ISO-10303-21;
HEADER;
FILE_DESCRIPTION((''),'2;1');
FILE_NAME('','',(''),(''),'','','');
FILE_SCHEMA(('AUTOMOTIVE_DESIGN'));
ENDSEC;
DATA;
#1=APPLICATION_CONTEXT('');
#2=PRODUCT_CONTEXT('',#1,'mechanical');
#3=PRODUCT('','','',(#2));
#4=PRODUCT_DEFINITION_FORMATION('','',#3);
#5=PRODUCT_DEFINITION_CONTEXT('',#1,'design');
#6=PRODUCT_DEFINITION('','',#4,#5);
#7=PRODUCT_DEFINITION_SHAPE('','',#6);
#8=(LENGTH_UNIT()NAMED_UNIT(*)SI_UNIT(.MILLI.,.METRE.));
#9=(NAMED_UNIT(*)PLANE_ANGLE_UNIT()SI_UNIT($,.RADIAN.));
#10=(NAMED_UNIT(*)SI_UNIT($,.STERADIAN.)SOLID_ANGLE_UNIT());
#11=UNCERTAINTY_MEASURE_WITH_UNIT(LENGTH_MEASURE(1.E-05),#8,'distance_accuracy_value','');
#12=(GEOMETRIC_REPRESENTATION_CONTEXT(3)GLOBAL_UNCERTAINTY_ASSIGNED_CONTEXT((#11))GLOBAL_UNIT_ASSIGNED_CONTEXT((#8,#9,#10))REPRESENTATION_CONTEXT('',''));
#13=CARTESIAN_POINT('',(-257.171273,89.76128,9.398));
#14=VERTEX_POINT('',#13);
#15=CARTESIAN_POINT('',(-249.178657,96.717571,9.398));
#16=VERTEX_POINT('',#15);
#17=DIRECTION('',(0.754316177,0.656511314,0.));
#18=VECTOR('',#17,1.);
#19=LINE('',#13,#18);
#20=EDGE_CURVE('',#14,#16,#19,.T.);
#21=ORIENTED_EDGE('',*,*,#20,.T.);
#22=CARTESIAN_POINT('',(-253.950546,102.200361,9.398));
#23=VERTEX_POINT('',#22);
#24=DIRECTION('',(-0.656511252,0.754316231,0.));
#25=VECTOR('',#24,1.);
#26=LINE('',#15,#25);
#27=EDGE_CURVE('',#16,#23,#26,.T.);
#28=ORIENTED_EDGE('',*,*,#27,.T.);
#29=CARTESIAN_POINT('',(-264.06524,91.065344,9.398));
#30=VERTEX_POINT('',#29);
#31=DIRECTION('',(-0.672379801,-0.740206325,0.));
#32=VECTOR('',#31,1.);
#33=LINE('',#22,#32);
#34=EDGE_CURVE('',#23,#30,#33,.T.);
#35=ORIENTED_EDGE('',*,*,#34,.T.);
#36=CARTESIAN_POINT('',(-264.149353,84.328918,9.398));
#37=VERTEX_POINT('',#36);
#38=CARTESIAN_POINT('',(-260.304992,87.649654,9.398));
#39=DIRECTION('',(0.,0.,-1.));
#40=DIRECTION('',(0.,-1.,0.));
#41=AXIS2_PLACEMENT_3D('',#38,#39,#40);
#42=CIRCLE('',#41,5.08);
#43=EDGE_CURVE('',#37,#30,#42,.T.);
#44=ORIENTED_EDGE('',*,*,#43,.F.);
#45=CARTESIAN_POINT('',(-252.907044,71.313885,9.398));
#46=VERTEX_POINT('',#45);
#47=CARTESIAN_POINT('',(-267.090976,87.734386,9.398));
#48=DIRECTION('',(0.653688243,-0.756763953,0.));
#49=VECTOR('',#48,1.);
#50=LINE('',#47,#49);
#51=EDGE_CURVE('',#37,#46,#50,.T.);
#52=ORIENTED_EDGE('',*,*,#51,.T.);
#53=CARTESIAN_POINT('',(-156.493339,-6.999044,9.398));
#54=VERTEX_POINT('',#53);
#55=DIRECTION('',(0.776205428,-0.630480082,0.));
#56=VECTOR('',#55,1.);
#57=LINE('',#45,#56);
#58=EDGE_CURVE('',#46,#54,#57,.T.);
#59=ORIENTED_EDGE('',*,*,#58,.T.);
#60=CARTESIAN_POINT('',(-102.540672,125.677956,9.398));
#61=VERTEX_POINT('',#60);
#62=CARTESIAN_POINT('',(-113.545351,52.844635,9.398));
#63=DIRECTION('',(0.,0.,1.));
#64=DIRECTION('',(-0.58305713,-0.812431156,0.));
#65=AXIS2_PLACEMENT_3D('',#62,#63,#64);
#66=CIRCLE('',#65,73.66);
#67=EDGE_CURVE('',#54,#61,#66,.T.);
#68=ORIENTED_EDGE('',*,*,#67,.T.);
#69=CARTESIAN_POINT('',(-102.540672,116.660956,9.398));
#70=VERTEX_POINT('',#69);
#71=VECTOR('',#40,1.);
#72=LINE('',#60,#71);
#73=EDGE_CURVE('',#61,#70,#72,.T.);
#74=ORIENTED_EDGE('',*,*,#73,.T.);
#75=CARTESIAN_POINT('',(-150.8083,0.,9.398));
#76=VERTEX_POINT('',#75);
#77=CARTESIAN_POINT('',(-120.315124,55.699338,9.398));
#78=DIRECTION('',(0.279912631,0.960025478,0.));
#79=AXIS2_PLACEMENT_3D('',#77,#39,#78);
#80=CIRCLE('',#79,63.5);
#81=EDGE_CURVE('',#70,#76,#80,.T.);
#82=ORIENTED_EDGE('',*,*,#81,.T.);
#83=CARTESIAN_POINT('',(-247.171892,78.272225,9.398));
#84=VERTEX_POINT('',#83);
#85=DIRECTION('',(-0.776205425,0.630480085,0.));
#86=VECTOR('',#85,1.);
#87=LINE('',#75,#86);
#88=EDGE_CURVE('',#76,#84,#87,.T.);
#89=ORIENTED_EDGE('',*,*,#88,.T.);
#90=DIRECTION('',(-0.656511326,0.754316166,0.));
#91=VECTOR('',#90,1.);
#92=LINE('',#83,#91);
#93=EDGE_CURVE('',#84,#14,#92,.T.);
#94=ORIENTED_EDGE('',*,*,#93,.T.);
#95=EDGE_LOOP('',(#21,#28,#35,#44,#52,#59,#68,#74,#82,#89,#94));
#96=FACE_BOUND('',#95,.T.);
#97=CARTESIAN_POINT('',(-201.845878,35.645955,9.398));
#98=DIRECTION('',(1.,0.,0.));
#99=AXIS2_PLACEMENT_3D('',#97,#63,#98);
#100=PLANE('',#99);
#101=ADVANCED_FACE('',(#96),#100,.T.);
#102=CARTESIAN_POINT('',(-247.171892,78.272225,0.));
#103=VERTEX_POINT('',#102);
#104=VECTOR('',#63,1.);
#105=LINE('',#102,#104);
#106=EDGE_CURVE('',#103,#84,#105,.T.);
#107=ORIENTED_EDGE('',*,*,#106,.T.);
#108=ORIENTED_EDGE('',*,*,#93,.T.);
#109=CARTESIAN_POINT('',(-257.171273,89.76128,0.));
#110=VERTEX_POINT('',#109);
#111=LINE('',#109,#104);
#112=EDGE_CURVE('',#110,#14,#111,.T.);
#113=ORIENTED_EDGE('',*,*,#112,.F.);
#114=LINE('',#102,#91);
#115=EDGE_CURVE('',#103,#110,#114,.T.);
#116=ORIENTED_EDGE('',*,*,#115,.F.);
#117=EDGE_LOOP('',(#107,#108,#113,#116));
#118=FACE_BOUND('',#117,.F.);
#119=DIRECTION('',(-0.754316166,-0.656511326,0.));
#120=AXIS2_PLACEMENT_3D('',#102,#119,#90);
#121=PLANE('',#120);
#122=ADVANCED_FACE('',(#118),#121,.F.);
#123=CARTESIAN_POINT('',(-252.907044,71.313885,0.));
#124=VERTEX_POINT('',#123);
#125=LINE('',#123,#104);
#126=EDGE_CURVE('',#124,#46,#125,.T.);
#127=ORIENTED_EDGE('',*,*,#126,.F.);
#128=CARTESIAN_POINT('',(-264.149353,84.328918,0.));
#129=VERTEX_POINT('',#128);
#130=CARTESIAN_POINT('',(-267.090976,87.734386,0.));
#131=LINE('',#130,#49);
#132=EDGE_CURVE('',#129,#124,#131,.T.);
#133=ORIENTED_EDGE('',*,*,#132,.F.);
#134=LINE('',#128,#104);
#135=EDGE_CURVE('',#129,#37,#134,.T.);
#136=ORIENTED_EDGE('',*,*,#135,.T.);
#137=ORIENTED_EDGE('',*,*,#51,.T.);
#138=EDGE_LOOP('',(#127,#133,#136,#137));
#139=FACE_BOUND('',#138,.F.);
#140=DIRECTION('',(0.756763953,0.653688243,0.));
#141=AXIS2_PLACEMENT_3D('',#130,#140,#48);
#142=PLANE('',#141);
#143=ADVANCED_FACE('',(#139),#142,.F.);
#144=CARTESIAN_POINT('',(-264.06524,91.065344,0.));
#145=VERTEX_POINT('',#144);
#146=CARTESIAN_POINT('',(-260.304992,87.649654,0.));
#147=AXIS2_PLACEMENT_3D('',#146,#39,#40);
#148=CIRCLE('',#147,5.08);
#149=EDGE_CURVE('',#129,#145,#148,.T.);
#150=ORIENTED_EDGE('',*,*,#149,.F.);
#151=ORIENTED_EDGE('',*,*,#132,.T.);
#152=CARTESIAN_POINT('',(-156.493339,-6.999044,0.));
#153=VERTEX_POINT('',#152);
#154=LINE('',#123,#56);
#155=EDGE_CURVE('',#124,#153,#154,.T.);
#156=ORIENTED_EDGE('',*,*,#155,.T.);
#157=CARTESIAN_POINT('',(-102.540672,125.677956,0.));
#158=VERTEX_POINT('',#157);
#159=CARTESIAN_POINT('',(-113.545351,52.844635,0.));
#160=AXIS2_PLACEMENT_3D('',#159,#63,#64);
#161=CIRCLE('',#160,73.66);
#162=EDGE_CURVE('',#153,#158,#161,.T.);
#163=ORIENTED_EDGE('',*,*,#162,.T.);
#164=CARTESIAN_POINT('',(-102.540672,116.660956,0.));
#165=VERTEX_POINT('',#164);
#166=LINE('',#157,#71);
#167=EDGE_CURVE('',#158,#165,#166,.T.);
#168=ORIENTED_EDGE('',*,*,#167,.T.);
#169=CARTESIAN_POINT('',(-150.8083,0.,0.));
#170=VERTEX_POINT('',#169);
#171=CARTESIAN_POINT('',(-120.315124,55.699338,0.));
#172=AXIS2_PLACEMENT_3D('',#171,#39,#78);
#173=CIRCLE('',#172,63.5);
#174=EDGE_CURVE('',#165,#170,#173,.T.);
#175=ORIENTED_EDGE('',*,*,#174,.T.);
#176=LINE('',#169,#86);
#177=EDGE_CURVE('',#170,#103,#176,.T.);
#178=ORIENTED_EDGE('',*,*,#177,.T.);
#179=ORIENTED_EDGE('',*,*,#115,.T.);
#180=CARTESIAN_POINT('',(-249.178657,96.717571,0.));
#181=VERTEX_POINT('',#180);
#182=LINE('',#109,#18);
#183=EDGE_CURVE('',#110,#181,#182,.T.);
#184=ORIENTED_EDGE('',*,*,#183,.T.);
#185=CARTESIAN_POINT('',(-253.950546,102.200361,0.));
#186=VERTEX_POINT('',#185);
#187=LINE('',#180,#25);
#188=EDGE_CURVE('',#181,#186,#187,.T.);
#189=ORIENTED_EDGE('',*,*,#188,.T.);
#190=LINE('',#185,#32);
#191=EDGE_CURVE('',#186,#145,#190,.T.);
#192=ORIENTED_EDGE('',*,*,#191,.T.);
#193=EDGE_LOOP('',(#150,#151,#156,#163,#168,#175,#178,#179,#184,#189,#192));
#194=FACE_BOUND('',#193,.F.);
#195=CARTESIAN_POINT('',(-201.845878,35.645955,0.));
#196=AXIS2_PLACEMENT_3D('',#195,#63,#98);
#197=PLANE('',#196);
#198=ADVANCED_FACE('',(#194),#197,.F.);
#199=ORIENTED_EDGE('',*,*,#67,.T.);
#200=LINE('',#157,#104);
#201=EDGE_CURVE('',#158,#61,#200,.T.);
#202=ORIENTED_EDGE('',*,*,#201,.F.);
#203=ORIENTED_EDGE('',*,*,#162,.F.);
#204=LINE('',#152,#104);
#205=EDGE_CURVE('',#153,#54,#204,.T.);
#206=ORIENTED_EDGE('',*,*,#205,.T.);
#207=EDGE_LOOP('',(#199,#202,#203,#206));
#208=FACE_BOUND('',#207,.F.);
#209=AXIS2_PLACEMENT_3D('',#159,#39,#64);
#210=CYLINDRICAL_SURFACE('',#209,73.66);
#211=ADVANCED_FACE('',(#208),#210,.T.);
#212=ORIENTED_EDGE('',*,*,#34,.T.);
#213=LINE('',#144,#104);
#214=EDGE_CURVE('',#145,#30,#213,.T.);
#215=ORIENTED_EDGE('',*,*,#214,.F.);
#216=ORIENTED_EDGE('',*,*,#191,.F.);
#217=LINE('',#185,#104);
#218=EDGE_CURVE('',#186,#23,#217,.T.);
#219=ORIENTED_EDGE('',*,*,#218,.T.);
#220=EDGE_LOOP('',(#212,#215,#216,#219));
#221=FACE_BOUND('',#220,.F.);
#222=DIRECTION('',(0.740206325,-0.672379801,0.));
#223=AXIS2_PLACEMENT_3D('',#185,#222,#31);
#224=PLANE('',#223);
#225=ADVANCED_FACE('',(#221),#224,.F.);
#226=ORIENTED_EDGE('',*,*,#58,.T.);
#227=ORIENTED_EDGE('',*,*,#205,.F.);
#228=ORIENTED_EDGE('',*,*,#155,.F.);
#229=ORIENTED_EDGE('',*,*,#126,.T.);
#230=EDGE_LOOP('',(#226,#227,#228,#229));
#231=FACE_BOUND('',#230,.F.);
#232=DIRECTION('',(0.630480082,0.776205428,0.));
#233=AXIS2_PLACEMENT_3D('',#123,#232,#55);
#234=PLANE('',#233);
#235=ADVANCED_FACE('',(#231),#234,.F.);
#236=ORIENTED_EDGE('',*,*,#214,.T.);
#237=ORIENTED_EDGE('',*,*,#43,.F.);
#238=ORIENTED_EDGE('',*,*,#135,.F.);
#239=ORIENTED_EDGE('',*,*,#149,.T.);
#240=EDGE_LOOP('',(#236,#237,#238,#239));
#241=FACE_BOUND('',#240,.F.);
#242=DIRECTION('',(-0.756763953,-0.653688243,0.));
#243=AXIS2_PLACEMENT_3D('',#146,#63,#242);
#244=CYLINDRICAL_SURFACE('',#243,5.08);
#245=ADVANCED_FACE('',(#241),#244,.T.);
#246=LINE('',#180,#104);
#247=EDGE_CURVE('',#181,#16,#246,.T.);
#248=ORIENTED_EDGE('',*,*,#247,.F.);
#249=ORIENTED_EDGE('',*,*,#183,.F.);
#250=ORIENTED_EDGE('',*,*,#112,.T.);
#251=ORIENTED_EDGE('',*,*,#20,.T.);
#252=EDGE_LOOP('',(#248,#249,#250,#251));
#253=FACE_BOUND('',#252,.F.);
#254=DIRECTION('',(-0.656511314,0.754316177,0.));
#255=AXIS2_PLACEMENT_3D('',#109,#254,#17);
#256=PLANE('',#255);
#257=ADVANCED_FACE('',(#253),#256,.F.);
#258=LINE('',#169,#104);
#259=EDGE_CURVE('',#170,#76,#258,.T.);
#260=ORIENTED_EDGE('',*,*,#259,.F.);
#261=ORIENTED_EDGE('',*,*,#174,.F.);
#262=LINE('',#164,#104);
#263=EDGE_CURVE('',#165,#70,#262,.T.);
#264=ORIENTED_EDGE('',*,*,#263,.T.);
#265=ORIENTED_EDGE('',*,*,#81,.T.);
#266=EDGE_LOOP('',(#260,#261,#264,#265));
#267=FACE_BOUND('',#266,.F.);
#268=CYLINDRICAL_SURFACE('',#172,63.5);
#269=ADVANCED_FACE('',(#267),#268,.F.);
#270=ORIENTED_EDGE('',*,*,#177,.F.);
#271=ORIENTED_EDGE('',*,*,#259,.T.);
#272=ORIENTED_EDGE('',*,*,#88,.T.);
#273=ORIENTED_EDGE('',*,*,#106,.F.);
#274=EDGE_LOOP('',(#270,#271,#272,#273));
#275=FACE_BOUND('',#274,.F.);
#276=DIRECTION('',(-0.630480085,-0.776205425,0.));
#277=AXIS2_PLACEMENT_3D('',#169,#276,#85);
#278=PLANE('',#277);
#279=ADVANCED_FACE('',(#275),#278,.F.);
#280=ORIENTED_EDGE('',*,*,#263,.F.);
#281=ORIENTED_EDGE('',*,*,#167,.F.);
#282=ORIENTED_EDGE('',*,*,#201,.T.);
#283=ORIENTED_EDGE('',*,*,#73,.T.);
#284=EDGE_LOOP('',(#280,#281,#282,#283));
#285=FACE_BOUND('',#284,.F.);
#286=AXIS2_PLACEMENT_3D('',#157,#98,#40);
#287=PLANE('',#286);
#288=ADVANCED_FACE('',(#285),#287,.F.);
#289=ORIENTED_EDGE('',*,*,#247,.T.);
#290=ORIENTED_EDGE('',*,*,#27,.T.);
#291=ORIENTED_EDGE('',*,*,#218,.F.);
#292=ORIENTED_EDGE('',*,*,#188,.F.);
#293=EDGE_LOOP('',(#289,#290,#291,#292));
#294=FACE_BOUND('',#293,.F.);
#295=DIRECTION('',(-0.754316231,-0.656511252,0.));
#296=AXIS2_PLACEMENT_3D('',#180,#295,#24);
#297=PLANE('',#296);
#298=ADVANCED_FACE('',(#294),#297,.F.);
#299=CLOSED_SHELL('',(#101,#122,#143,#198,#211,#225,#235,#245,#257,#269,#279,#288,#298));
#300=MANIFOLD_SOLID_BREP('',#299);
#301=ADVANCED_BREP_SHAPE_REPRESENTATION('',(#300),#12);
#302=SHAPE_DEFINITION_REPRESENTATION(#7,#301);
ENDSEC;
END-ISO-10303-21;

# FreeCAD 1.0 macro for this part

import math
import FreeCAD as App
import Part
import Sketcher
Q = App.Units.Quantity


def edges_at(feature, points):
    """Names of the edges that pass closest to the given points."""
    edges = feature.Shape.Edges
    near = lambda p: min(range(len(edges)), key=lambda i: edges[i].distToShape(Part.Vertex(*p))[0])
    return sorted({f"Edge{near(p) + 1}" for p in points})

doc = App.newDocument("Part")
params = doc.addObject("Spreadsheet::Sheet", "Params")
for row, (alias, value) in enumerate([
    ("sketch1_radius", "2.9 in"),
    ("sketch1_radius2", "2.5 in"),
    ("sketch1_height", "0.355 in"),
    ("pad1_length", "0.37 in"),
    ("sketch2_radius", "2.9 in"),
    ("sketch2_radius2", "2.5 in"),
    ("sketch2_height", "0.355 in"),
    ("pad2_length", "0.37 in"),
    ("fillet_radius", "0.2 in"),
], start=1):
    params.set(f"A{row}", alias)
    params.set(f"B{row}", "=" + value)
    params.setAlias(f"B{row}", alias)

body = doc.addObject("PartDesign::Body", "Body")

sketch1 = doc.addObject("Sketcher::SketchObject", "Sketch")
body.addObject(sketch1)
sketch1.AttachmentSupport = (doc.XY_Plane, [""])
sketch1.MapMode = "FlatFace"
sketch1.addGeometry([
    Part.LineSegment(App.Vector(-252.907044, 71.313885, 0), App.Vector(-156.493339, -6.999044, 0)),
    Part.ArcOfCircle(Part.Circle(App.Vector(-113.545351, 52.844635, 0), App.Vector(0, 0, 1), 73.66), math.radians(-125.665853), math.radians(81.407941)),
    Part.LineSegment(App.Vector(-102.540672, 125.677956, 0), App.Vector(-102.540672, 116.660956, 0)),
    Part.ArcOfCircle(Part.Circle(App.Vector(-120.315124, 55.699338, 0), App.Vector(0, 0, 1), 63.5), math.radians(-118.698955), math.radians(73.74501)),
    Part.LineSegment(App.Vector(-150.8083, 0, 0), App.Vector(-247.171892, 78.272225, 0)),
    Part.LineSegment(App.Vector(-247.171892, 78.272225, 0), App.Vector(-252.907044, 71.313885, 0)),
], False)
sketch1.addConstraint([
    Sketcher.Constraint("Coincident", 0, 2, 1, 1),
    Sketcher.Constraint("Coincident", 1, 2, 2, 1),
    Sketcher.Constraint("Coincident", 2, 2, 3, 2),
    Sketcher.Constraint("Coincident", 3, 1, 4, 1),
    Sketcher.Constraint("Coincident", 4, 2, 5, 1),
    Sketcher.Constraint("Coincident", 5, 2, 0, 1),
    Sketcher.Constraint("Vertical", 2),
    Sketcher.Constraint("PointOnObject", 3, 1, -1),
    Sketcher.Constraint("Parallel", 0, 4),
    Sketcher.Constraint("Radius", 1, Q("2.9 in")),
    Sketcher.Constraint("Radius", 3, Q("2.5 in")),
    Sketcher.Constraint("DistanceY", 2, 2, 2, 1, Q("0.355 in")),
    Sketcher.Constraint("DistanceX", 3, 1, -1, 1, 150.8083),
    Sketcher.Constraint("DistanceY", 0, 2, 1, 2, 132.677),
    Sketcher.Constraint("Distance", 4, 124.147022),
    Sketcher.Constraint("Distance", 5, 9.017232),
    Sketcher.Constraint("DistanceX", 1, 3, -1, 1, 113.545351),
    Sketcher.Constraint("DistanceX", 0, 2, -1, 1, 156.493339),
    Sketcher.Constraint("DistanceY", 0, 2, 3, 3, 62.698382),
    Sketcher.Constraint("DistanceY", 0, 2, 4, 2, 85.271269),
])
sketch1.setExpression("Constraints[9]", "Params.sketch1_radius")
sketch1.setExpression("Constraints[10]", "Params.sketch1_radius2")
sketch1.setExpression("Constraints[11]", "Params.sketch1_height")
pad1 = doc.addObject("PartDesign::Pad", "Pad")
body.addObject(pad1)
pad1.Profile = sketch1
pad1.setExpression("Length", "Params.pad1_length")

sketch2 = doc.addObject("Sketcher::SketchObject", "Sketch001")
body.addObject(sketch2)
sketch2.AttachmentSupport = (doc.XY_Plane, [""])
sketch2.MapMode = "FlatFace"
sketch2.addGeometry([
    Part.ArcOfCircle(Part.Circle(App.Vector(-114, 53, 0), App.Vector(0, 0, 1), 74), math.radians(-126), math.radians(81)),
    Part.LineSegment(App.Vector(-103, 126, 0), App.Vector(-103, 117, 0)),
    Part.ArcOfCircle(Part.Circle(App.Vector(-120, 56, 0), App.Vector(0, 0, 1), 64), math.radians(-119), math.radians(74)),
    Part.LineSegment(App.Vector(-151, 0, 0), App.Vector(-247, 78, 0)),
    Part.LineSegment(App.Vector(-247, 78, 0), App.Vector(-257, 90, 0)),
    Part.LineSegment(App.Vector(-257, 90, 0), App.Vector(-249, 97, 0)),
    Part.LineSegment(App.Vector(-249, 97, 0), App.Vector(-254, 102, 0)),
    Part.LineSegment(App.Vector(-254, 102, 0), App.Vector(-267, 88, 0)),
    Part.LineSegment(App.Vector(-267, 88, 0), App.Vector(-253, 71, 0)),
    Part.LineSegment(App.Vector(-253, 71, 0), App.Vector(-156, -7, 0)),
], False)
sketch2.addConstraint([
    Sketcher.Constraint("Coincident", 0, 2, 1, 1),
    Sketcher.Constraint("Coincident", 1, 2, 2, 2),
    Sketcher.Constraint("Coincident", 2, 1, 3, 1),
    Sketcher.Constraint("Coincident", 3, 2, 4, 1),
    Sketcher.Constraint("Coincident", 4, 2, 5, 1),
    Sketcher.Constraint("Coincident", 5, 2, 6, 1),
    Sketcher.Constraint("Coincident", 6, 2, 7, 1),
    Sketcher.Constraint("Coincident", 7, 2, 8, 1),
    Sketcher.Constraint("Coincident", 8, 2, 9, 1),
    Sketcher.Constraint("Coincident", 9, 2, 0, 1),
    Sketcher.Constraint("Vertical", 1),
    Sketcher.Constraint("PointOnObject", 2, 1, -1),
    Sketcher.Constraint("Perpendicular", 4, 5),
    Sketcher.Constraint("Perpendicular", 5, 6),
    Sketcher.Constraint("Parallel", 3, 9),
    Sketcher.Constraint("Radius", 0, Q("2.9 in")),
    Sketcher.Constraint("Radius", 2, Q("2.5 in")),
    Sketcher.Constraint("DistanceY", 1, 2, 1, 1, Q("0.355 in")),
    Sketcher.Constraint("DistanceX", 2, 1, -1, 1, 150.8083),
    Sketcher.Constraint("DistanceX", 4, 2, 1, 2, 154.630601),
    Sketcher.Constraint("DistanceY", 8, 2, 7, 2, 16.420501),
    Sketcher.Constraint("DistanceX", 6, 2, 8, 2, 1.043502),
    Sketcher.Constraint("Distance", 3, 124.147022),
    Sketcher.Constraint("DistanceX", 0, 3, -1, 1, 113.545351),
    Sketcher.Constraint("DistanceX", 1, 2, -1, 1, 102.540672),
    Sketcher.Constraint("DistanceY", -1, 1, 4, 2, 89.76128),
    Sketcher.Constraint("DistanceY", -1, 1, 5, 2, 96.717571),
    Sketcher.Constraint("DistanceY", -1, 1, 6, 2, 102.200361),
    Sketcher.Constraint("DistanceX", 9, 2, -1, 1, 156.493339),
    Sketcher.Constraint("DistanceY", 2, 3, 0, 2, 69.978618),
    Sketcher.Constraint("DistanceX", 3, 2, 0, 3, 133.626541),
    Sketcher.Constraint("DistanceX", 7, 2, 6, 2, 13.14043),
])
sketch2.setExpression("Constraints[15]", "Params.sketch2_radius")
sketch2.setExpression("Constraints[16]", "Params.sketch2_radius2")
sketch2.setExpression("Constraints[17]", "Params.sketch2_height")
pad2 = doc.addObject("PartDesign::Pad", "Pad001")
body.addObject(pad2)
pad2.Profile = sketch2
pad2.setExpression("Length", "Params.pad2_length")
doc.recompute()

fillet = doc.addObject("PartDesign::Fillet", "Fillet")
body.addObject(fillet)
fillet.Base = (pad2, edges_at(pad2, [(-267.091, 87.734, 4.699)]))
fillet.setExpression("Radius", "Params.fillet_radius")

doc.recompute()
